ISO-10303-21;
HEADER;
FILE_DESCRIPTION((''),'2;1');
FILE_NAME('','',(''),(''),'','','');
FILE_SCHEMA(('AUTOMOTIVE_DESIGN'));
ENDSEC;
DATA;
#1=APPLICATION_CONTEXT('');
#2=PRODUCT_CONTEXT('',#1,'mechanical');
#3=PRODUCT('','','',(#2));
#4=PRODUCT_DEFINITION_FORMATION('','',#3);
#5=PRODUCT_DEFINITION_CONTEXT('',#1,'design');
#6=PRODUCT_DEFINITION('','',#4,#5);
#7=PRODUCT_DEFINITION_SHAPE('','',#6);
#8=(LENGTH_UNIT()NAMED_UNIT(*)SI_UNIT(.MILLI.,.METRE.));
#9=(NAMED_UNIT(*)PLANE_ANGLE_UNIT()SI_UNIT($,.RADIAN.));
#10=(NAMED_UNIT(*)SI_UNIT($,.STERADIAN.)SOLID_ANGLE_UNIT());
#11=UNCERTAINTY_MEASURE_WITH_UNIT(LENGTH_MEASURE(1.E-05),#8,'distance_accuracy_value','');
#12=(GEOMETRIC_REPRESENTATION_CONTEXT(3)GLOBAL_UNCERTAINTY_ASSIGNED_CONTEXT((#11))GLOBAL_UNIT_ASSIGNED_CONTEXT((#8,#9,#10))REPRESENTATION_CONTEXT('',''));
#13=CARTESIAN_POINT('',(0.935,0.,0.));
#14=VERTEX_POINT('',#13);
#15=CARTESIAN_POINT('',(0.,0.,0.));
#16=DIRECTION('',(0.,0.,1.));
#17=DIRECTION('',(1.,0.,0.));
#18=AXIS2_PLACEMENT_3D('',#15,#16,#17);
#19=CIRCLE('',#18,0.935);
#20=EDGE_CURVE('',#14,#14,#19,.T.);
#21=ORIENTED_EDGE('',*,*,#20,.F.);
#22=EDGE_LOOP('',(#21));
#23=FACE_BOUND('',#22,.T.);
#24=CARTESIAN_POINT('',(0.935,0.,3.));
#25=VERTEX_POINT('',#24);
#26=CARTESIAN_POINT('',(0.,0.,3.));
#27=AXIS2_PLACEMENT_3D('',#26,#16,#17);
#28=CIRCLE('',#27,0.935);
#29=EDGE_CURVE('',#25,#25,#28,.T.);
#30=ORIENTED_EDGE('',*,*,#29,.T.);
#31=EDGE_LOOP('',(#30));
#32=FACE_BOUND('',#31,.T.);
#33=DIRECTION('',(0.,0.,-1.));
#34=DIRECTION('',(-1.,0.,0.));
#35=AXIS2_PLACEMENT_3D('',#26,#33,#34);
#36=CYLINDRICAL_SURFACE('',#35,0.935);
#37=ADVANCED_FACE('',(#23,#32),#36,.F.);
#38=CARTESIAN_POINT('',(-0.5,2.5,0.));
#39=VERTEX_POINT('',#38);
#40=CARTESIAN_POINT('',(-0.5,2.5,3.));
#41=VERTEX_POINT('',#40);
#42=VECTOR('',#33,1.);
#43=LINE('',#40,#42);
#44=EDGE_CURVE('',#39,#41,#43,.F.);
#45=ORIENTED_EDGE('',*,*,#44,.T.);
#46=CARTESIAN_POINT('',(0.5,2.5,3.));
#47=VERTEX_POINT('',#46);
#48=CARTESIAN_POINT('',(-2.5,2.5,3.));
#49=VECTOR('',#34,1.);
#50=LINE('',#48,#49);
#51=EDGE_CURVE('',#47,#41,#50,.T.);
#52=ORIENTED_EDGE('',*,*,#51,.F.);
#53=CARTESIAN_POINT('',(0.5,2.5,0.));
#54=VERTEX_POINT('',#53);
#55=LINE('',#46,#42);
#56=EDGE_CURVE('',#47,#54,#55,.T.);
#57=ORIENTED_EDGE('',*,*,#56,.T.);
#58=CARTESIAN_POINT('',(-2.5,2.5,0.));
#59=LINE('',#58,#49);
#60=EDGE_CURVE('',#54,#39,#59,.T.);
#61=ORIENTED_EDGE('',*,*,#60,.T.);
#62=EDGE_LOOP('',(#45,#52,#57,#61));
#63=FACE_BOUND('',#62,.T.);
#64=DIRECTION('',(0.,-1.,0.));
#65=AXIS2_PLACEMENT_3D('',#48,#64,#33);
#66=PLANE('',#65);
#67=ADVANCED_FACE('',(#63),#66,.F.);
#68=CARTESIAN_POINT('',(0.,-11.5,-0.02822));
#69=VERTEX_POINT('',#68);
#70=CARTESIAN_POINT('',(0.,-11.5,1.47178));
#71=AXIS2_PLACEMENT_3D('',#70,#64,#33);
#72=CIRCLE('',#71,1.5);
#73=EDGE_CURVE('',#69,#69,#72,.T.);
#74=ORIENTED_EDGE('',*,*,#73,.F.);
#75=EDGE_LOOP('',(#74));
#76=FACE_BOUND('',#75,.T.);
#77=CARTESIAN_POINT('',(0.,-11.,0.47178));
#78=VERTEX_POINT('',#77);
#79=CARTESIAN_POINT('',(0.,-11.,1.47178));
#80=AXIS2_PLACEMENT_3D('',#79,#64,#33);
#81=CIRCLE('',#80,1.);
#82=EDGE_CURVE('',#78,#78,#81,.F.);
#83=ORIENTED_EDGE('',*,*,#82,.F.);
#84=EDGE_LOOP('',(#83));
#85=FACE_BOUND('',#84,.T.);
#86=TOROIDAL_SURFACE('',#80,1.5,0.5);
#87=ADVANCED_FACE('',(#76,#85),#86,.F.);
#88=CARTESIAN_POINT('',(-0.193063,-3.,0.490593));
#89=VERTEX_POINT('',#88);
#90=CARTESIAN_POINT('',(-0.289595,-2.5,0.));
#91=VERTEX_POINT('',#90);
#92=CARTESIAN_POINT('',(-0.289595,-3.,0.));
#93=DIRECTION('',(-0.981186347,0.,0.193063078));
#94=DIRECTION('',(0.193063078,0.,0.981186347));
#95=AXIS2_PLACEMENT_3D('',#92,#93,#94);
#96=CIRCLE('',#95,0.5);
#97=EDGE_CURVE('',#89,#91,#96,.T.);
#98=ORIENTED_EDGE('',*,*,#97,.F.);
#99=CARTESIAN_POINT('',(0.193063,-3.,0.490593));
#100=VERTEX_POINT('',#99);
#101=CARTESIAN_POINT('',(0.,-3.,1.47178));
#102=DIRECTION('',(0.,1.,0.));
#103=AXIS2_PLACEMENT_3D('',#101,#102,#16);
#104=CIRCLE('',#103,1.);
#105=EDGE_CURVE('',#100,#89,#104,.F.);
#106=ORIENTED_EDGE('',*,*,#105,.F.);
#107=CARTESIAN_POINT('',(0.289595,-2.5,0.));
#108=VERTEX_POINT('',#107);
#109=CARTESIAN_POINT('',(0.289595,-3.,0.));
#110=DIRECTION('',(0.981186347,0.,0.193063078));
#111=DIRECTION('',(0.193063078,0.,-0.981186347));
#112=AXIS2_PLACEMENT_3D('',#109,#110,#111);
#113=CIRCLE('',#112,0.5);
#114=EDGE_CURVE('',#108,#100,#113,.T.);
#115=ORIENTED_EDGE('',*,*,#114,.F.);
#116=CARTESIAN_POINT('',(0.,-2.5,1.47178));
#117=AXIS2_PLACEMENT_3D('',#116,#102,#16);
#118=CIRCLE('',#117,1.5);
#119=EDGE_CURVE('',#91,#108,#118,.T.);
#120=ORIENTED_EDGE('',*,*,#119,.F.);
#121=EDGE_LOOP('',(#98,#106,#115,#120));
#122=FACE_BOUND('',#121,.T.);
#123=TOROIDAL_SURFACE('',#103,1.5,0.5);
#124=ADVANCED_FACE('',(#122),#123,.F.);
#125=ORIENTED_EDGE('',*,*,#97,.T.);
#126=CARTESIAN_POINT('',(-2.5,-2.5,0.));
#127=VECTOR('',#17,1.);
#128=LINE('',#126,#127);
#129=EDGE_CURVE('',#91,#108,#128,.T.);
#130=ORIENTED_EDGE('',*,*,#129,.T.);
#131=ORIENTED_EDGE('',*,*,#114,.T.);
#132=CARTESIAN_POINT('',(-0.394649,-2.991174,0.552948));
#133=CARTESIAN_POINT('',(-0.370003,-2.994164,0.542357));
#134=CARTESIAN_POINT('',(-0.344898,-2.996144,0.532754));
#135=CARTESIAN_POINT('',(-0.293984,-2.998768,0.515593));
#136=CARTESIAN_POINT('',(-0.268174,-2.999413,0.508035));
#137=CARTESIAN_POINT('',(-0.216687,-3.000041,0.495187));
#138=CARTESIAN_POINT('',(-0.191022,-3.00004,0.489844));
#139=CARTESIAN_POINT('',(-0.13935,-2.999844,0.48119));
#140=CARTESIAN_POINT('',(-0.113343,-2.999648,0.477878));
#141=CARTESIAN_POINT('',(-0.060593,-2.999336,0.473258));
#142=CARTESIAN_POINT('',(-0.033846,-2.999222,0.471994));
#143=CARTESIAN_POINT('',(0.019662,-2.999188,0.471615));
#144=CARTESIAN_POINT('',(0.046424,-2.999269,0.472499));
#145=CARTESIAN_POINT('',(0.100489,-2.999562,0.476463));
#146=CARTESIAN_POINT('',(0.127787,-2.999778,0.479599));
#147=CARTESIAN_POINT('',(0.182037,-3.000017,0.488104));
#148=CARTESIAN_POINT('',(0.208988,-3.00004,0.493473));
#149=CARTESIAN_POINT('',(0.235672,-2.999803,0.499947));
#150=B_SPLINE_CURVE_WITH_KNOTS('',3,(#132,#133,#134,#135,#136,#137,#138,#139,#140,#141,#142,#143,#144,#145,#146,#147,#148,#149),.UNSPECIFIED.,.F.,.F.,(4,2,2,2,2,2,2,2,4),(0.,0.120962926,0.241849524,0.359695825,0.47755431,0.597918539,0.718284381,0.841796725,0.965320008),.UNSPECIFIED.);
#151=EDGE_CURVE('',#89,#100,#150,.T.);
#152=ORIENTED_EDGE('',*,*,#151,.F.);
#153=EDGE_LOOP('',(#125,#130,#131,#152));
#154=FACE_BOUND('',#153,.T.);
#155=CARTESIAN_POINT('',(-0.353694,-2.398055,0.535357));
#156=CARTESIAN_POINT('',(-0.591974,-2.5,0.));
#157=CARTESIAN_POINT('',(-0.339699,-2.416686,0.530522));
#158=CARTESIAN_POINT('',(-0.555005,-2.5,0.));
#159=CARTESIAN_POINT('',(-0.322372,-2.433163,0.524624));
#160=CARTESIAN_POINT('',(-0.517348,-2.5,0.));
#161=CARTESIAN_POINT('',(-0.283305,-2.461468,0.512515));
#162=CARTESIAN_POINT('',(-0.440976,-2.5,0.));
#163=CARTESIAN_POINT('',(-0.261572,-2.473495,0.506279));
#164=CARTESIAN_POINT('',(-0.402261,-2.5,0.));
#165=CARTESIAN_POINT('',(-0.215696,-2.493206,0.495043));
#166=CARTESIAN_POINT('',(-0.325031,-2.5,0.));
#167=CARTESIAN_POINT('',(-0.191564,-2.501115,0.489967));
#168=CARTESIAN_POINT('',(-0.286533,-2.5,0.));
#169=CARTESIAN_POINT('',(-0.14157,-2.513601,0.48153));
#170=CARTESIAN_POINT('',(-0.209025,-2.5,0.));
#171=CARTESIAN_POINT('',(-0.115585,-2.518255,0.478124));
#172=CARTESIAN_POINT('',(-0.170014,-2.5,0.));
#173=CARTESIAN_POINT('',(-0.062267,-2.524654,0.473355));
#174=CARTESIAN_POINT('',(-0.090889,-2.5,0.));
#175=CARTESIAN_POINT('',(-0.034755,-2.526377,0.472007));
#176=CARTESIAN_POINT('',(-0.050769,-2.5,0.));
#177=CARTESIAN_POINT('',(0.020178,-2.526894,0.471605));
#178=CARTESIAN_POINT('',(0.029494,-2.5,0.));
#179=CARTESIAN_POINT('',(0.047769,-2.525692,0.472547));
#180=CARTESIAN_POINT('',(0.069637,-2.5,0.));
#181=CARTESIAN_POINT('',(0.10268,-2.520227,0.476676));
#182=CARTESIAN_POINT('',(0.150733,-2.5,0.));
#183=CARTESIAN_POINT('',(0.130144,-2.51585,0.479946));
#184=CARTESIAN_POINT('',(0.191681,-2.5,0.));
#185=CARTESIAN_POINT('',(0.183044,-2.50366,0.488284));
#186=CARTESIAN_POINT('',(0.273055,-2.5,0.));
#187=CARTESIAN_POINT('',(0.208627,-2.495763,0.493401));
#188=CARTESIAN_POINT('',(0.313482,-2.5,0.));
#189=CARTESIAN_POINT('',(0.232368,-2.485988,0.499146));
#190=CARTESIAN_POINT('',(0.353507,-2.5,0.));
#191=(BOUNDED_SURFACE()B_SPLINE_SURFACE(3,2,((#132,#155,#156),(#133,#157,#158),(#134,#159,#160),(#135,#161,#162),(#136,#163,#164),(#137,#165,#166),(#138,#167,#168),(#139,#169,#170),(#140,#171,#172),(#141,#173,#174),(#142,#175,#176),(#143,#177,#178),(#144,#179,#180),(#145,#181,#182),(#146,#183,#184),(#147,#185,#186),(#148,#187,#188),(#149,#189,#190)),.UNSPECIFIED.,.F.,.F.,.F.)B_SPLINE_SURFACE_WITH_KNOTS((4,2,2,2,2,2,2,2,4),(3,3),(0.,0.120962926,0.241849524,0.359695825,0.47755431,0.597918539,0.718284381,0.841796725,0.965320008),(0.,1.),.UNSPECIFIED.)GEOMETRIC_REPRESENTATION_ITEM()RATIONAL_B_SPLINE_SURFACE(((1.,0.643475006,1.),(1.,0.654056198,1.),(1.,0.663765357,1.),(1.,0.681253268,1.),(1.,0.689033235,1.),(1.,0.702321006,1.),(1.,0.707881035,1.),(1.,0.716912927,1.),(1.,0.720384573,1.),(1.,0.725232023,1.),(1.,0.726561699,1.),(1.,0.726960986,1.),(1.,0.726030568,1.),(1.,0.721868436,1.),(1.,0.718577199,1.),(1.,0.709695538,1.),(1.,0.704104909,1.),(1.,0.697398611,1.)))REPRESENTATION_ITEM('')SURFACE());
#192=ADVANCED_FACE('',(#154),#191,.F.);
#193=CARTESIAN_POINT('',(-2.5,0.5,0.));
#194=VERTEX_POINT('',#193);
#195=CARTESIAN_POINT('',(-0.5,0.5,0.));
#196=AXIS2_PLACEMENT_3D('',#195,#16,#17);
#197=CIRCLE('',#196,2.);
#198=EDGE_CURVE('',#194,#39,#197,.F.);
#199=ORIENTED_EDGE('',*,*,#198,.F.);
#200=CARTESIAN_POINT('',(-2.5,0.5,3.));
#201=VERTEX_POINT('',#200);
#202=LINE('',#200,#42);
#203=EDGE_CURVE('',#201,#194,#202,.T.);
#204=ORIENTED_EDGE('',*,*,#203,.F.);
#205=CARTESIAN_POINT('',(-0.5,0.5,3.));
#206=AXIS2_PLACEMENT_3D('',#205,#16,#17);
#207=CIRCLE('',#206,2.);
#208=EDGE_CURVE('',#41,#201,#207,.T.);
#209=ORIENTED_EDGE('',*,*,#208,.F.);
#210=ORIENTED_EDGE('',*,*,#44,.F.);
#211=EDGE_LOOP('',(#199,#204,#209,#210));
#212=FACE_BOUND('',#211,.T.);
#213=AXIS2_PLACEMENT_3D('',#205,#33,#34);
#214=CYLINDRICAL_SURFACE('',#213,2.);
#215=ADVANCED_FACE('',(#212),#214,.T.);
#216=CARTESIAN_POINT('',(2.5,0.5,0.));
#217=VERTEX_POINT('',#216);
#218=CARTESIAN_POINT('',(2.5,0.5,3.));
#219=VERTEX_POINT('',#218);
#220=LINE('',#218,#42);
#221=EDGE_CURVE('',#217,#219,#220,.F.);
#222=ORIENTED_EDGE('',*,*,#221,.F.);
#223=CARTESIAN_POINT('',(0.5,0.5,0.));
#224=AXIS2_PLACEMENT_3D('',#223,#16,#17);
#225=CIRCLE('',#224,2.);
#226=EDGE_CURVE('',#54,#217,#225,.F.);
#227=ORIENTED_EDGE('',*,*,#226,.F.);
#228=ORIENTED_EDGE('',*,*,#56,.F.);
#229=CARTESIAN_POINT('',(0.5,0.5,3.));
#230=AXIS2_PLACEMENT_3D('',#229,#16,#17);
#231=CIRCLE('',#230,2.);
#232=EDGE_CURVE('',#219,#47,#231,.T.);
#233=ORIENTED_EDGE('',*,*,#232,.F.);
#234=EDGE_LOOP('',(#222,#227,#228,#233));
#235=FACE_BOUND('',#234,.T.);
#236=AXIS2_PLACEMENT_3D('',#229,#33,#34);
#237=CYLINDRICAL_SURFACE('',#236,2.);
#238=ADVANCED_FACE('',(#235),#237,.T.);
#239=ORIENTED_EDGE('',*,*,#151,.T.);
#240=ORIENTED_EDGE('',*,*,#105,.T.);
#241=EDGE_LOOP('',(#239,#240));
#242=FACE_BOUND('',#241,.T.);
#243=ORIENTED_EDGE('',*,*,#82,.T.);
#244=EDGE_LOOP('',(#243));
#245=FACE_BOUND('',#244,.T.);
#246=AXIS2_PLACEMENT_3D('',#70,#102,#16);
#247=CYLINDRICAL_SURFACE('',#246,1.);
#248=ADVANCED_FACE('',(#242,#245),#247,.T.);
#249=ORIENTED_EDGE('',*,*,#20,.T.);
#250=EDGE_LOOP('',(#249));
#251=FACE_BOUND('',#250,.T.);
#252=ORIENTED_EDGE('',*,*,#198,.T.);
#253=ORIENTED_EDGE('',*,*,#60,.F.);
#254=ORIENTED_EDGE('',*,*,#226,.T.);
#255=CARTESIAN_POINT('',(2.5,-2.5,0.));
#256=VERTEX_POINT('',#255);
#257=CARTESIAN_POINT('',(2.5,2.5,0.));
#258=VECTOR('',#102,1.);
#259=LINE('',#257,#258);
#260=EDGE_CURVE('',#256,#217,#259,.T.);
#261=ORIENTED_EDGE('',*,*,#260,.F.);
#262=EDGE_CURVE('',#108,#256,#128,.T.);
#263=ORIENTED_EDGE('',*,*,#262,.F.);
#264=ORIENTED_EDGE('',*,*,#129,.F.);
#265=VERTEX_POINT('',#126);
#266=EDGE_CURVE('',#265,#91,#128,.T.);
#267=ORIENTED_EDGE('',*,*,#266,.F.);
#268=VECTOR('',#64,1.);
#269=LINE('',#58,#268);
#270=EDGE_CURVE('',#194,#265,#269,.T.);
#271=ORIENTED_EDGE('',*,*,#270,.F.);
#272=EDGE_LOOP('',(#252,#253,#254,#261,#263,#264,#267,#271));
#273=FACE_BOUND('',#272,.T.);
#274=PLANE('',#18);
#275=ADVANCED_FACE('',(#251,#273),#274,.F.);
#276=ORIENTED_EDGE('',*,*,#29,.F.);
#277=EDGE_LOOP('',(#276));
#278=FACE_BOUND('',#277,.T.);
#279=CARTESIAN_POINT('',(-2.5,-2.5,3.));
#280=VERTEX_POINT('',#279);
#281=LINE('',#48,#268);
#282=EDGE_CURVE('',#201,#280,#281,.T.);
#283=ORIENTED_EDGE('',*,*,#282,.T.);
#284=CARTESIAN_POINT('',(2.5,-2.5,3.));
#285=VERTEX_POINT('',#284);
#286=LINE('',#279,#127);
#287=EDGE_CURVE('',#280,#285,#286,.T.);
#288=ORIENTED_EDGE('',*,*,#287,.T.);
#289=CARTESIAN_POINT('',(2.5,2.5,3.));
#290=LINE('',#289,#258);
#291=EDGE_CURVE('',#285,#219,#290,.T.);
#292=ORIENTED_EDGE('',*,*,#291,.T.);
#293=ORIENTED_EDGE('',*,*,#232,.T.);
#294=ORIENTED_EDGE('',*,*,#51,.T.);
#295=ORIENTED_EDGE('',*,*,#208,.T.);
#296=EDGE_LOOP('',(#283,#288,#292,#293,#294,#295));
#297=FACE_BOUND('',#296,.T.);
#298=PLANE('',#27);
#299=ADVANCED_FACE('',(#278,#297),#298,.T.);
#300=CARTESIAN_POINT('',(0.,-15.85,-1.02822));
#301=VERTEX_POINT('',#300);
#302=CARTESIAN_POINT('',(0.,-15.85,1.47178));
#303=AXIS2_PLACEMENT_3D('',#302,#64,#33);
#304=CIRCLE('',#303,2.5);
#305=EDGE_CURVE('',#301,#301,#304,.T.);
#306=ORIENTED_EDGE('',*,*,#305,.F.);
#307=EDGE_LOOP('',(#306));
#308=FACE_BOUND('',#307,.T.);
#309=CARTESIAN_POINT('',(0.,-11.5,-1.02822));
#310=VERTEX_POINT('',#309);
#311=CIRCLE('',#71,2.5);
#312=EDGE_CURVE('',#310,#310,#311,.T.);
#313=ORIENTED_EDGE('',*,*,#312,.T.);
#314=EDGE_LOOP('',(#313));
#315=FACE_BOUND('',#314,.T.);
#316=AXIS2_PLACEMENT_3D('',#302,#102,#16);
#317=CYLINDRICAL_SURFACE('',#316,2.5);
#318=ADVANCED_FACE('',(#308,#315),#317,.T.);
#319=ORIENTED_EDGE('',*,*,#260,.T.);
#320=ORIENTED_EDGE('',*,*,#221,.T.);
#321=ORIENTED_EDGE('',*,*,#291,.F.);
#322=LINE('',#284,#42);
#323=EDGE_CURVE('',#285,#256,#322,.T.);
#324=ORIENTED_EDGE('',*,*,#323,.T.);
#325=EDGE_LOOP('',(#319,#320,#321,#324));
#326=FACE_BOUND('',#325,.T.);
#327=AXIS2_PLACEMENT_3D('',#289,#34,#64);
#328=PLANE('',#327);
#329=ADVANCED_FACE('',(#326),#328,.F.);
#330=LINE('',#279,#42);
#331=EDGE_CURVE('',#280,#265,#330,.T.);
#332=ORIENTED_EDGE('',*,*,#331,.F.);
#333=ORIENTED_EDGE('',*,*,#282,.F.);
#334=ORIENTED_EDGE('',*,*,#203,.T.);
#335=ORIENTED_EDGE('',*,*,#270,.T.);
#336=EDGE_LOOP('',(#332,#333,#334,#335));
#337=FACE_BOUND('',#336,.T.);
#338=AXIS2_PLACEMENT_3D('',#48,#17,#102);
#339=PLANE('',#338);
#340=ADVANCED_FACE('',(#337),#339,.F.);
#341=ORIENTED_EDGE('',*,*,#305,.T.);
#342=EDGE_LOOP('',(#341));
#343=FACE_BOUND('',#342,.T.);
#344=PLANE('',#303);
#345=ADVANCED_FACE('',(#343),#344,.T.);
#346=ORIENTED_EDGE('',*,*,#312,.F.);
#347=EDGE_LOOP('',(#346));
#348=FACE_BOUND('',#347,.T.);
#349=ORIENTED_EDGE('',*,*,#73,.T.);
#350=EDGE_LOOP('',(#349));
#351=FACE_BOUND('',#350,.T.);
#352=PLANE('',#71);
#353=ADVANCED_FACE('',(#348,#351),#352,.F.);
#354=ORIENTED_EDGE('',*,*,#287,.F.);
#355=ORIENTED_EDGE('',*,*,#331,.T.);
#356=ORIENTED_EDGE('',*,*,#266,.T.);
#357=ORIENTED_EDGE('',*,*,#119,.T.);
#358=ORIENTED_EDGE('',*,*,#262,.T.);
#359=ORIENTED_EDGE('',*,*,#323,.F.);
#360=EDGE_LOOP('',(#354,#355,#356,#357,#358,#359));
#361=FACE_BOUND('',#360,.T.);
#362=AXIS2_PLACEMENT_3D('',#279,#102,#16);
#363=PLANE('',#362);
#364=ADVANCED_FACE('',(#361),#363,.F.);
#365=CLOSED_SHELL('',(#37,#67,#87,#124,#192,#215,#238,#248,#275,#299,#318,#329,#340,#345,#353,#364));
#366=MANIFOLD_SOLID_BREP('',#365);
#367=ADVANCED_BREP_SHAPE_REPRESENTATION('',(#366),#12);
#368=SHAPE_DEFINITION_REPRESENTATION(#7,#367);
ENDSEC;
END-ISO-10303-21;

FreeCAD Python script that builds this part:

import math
import FreeCAD as App
import Part
import Sketcher

V = App.Vector
Q = App.Units.Quantity


def edges_at(feature, points):
    """Names of the edges that pass closest to the given points."""
    edges = feature.Shape.Edges
    near = lambda p: min(range(len(edges)), key=lambda i: edges[i].distToShape(Part.Vertex(*p))[0])
    return sorted({f"Edge{near(p) + 1}" for p in points})

doc = App.newDocument("Part")
params = doc.addObject("Spreadsheet::Sheet", "Params")
for row, (alias, value) in enumerate([
    ("sketch1_diameter", "1.87 mm"),
    ("sketch1_width", "5 mm"),
    ("pad1_length", "3 mm"),
    ("fillet_radius", "2 mm"),
    ("sketch2_radius", "1 mm"),
    ("pad2_length", "9 mm"),
    ("fillet2_radius", "0.5 mm"),
    ("sketch3_diameter", "5 mm"),
    ("pad3_length", "4.35 mm"),
    ("fillet3_radius", "0.5 mm"),
], start=1):
    params.set(f"A{row}", alias)
    params.set(f"B{row}", "=" + value)
    params.setAlias(f"B{row}", alias)

body = doc.addObject("PartDesign::Body", "Body")

sketch1 = body.newObject("Sketcher::SketchObject", "Sketch")
sketch1.AttachmentSupport = (doc.getObject("XY_Plane"), [""])
sketch1.MapMode = "FlatFace"
sketch1.addGeometry(Part.LineSegment(V(-2.5, 2.5, 0), V(-2.5, -2.5, 0)), False)
sketch1.addGeometry(Part.LineSegment(V(-2.5, -2.5, 0), V(2.5, -2.5, 0)), False)
sketch1.addGeometry(Part.LineSegment(V(2.5, -2.5, 0), V(2.5, 2.5, 0)), False)
sketch1.addGeometry(Part.LineSegment(V(2.5, 2.5, 0), V(-2.5, 2.5, 0)), False)
sketch1.addGeometry(Part.Circle(V(0, 0, 0), V(0, 0, 1), 0.935), False)
sketch1.addConstraint(Sketcher.Constraint("Coincident", 0, 2, 1, 1))
sketch1.addConstraint(Sketcher.Constraint("Coincident", 1, 2, 2, 1))
sketch1.addConstraint(Sketcher.Constraint("Coincident", 2, 2, 3, 1))
sketch1.addConstraint(Sketcher.Constraint("Coincident", 3, 2, 0, 1))
sketch1.addConstraint(Sketcher.Constraint("Vertical", 0))
sketch1.addConstraint(Sketcher.Constraint("Horizontal", 1))
sketch1.addConstraint(Sketcher.Constraint("Vertical", 2))
sketch1.addConstraint(Sketcher.Constraint("Horizontal", 3))
sketch1.addConstraint(Sketcher.Constraint("Coincident", 4, 3, -1, 1))
sketch1.addConstraint(Sketcher.Constraint("Symmetric", 0, 2, 2, 2, -1, 1))
sketch1.addConstraint(Sketcher.Constraint("Equal", 3, 0))
sketch1.addConstraint(Sketcher.Constraint("Diameter", 4, Q("1.87 mm")))
sketch1.addConstraint(Sketcher.Constraint("DistanceX", 1, 1, 1, 2, Q("5 mm")))
sketch1.setExpression("Constraints[11]", "Params.sketch1_diameter")
sketch1.setExpression("Constraints[12]", "Params.sketch1_width")
pad1 = body.newObject("PartDesign::Pad", "Pad")
pad1.Profile = sketch1
pad1.setExpression("Length", "Params.pad1_length")
doc.recompute()

fillet = body.newObject("PartDesign::Fillet", "Fillet")
fillet.Base = (pad1, edges_at(pad1, [(-2.5, 2.5, 1.5), (2.5, 2.5, 1.5)]))
fillet.setExpression("Radius", "Params.fillet_radius")

sketch2 = body.newObject("Sketcher::SketchObject", "Sketch001")
sketch2.AttachmentSupport = (doc.getObject("XZ_Plane"), [""])
sketch2.MapMode = "FlatFace"
sketch2.AttachmentOffset = App.Placement(V(0, 0, 2.5), App.Rotation())
sketch2.addGeometry(Part.ArcOfCircle(Part.Circle(V(0, 1.47178, 0), V(0, 0, 1), 1), math.radians(90), math.radians(270)), False)
sketch2.addGeometry(Part.ArcOfCircle(Part.Circle(V(0, 1.47178, 0), V(0, 0, 1), 1), math.radians(-90), math.radians(0)), False)
sketch2.addGeometry(Part.ArcOfCircle(Part.Circle(V(0, 1.47178, 0), V(0, 0, 1), 1), math.radians(0), math.radians(90)), False)
sketch2.addConstraint(Sketcher.Constraint("Tangent", 0, 2, 1, 1))
sketch2.addConstraint(Sketcher.Constraint("Tangent", 1, 2, 2, 1))
sketch2.addConstraint(Sketcher.Constraint("Tangent", 2, 2, 0, 1))
sketch2.addConstraint(Sketcher.Constraint("PointOnObject", 0, 3, -2))
sketch2.addConstraint(Sketcher.Constraint("PointOnObject", 0, 2, -2))
sketch2.addConstraint(Sketcher.Constraint("PointOnObject", 2, 2, -2))
sketch2.addConstraint(Sketcher.Constraint("Horizontal", 2, 3, 1, 2))
sketch2.addConstraint(Sketcher.Constraint("Radius", 0, Q("1 mm")))
sketch2.addConstraint(Sketcher.Constraint("DistanceY", -1, 1, 0, 3, Q("1.47178 mm")))
sketch2.setExpression("Constraints[7]", "Params.sketch2_radius")
pad2 = body.newObject("PartDesign::Pad", "Pad001")
pad2.Profile = sketch2
pad2.setExpression("Length", "Params.pad2_length")
doc.recompute()

fillet2 = body.newObject("PartDesign::Fillet", "Fillet001")
fillet2.Base = (pad2, edges_at(pad2, [(0.707, -2.5, 0.765)]))
fillet2.setExpression("Radius", "Params.fillet2_radius")

sketch3 = body.newObject("Sketcher::SketchObject", "Sketch002")
sketch3.AttachmentSupport = (doc.getObject("XZ_Plane"), [""])
sketch3.MapMode = "FlatFace"
sketch3.AttachmentOffset = App.Placement(V(0, 0, 11.5), App.Rotation())
sketch3.addGeometry(Part.Circle(V(0, 1.47178, 0), V(0, 0, 1), 2.5), False)
sketch3.addConstraint(Sketcher.Constraint("PointOnObject", 0, 3, -2))
sketch3.addConstraint(Sketcher.Constraint("Diameter", 0, Q("5 mm")))
sketch3.addConstraint(Sketcher.Constraint("DistanceY", -1, 1, 0, 3, Q("1.47178 mm")))
sketch3.setExpression("Constraints[1]", "Params.sketch3_diameter")
pad3 = body.newObject("PartDesign::Pad", "Pad002")
pad3.Profile = sketch3
pad3.setExpression("Length", "Params.pad3_length")
doc.recompute()

fillet3 = body.newObject("PartDesign::Fillet", "Fillet002")
fillet3.Base = (pad3, edges_at(pad3, [(-1, -11.5, 1.472)]))
fillet3.setExpression("Radius", "Params.fillet3_radius")

doc.recompute()
